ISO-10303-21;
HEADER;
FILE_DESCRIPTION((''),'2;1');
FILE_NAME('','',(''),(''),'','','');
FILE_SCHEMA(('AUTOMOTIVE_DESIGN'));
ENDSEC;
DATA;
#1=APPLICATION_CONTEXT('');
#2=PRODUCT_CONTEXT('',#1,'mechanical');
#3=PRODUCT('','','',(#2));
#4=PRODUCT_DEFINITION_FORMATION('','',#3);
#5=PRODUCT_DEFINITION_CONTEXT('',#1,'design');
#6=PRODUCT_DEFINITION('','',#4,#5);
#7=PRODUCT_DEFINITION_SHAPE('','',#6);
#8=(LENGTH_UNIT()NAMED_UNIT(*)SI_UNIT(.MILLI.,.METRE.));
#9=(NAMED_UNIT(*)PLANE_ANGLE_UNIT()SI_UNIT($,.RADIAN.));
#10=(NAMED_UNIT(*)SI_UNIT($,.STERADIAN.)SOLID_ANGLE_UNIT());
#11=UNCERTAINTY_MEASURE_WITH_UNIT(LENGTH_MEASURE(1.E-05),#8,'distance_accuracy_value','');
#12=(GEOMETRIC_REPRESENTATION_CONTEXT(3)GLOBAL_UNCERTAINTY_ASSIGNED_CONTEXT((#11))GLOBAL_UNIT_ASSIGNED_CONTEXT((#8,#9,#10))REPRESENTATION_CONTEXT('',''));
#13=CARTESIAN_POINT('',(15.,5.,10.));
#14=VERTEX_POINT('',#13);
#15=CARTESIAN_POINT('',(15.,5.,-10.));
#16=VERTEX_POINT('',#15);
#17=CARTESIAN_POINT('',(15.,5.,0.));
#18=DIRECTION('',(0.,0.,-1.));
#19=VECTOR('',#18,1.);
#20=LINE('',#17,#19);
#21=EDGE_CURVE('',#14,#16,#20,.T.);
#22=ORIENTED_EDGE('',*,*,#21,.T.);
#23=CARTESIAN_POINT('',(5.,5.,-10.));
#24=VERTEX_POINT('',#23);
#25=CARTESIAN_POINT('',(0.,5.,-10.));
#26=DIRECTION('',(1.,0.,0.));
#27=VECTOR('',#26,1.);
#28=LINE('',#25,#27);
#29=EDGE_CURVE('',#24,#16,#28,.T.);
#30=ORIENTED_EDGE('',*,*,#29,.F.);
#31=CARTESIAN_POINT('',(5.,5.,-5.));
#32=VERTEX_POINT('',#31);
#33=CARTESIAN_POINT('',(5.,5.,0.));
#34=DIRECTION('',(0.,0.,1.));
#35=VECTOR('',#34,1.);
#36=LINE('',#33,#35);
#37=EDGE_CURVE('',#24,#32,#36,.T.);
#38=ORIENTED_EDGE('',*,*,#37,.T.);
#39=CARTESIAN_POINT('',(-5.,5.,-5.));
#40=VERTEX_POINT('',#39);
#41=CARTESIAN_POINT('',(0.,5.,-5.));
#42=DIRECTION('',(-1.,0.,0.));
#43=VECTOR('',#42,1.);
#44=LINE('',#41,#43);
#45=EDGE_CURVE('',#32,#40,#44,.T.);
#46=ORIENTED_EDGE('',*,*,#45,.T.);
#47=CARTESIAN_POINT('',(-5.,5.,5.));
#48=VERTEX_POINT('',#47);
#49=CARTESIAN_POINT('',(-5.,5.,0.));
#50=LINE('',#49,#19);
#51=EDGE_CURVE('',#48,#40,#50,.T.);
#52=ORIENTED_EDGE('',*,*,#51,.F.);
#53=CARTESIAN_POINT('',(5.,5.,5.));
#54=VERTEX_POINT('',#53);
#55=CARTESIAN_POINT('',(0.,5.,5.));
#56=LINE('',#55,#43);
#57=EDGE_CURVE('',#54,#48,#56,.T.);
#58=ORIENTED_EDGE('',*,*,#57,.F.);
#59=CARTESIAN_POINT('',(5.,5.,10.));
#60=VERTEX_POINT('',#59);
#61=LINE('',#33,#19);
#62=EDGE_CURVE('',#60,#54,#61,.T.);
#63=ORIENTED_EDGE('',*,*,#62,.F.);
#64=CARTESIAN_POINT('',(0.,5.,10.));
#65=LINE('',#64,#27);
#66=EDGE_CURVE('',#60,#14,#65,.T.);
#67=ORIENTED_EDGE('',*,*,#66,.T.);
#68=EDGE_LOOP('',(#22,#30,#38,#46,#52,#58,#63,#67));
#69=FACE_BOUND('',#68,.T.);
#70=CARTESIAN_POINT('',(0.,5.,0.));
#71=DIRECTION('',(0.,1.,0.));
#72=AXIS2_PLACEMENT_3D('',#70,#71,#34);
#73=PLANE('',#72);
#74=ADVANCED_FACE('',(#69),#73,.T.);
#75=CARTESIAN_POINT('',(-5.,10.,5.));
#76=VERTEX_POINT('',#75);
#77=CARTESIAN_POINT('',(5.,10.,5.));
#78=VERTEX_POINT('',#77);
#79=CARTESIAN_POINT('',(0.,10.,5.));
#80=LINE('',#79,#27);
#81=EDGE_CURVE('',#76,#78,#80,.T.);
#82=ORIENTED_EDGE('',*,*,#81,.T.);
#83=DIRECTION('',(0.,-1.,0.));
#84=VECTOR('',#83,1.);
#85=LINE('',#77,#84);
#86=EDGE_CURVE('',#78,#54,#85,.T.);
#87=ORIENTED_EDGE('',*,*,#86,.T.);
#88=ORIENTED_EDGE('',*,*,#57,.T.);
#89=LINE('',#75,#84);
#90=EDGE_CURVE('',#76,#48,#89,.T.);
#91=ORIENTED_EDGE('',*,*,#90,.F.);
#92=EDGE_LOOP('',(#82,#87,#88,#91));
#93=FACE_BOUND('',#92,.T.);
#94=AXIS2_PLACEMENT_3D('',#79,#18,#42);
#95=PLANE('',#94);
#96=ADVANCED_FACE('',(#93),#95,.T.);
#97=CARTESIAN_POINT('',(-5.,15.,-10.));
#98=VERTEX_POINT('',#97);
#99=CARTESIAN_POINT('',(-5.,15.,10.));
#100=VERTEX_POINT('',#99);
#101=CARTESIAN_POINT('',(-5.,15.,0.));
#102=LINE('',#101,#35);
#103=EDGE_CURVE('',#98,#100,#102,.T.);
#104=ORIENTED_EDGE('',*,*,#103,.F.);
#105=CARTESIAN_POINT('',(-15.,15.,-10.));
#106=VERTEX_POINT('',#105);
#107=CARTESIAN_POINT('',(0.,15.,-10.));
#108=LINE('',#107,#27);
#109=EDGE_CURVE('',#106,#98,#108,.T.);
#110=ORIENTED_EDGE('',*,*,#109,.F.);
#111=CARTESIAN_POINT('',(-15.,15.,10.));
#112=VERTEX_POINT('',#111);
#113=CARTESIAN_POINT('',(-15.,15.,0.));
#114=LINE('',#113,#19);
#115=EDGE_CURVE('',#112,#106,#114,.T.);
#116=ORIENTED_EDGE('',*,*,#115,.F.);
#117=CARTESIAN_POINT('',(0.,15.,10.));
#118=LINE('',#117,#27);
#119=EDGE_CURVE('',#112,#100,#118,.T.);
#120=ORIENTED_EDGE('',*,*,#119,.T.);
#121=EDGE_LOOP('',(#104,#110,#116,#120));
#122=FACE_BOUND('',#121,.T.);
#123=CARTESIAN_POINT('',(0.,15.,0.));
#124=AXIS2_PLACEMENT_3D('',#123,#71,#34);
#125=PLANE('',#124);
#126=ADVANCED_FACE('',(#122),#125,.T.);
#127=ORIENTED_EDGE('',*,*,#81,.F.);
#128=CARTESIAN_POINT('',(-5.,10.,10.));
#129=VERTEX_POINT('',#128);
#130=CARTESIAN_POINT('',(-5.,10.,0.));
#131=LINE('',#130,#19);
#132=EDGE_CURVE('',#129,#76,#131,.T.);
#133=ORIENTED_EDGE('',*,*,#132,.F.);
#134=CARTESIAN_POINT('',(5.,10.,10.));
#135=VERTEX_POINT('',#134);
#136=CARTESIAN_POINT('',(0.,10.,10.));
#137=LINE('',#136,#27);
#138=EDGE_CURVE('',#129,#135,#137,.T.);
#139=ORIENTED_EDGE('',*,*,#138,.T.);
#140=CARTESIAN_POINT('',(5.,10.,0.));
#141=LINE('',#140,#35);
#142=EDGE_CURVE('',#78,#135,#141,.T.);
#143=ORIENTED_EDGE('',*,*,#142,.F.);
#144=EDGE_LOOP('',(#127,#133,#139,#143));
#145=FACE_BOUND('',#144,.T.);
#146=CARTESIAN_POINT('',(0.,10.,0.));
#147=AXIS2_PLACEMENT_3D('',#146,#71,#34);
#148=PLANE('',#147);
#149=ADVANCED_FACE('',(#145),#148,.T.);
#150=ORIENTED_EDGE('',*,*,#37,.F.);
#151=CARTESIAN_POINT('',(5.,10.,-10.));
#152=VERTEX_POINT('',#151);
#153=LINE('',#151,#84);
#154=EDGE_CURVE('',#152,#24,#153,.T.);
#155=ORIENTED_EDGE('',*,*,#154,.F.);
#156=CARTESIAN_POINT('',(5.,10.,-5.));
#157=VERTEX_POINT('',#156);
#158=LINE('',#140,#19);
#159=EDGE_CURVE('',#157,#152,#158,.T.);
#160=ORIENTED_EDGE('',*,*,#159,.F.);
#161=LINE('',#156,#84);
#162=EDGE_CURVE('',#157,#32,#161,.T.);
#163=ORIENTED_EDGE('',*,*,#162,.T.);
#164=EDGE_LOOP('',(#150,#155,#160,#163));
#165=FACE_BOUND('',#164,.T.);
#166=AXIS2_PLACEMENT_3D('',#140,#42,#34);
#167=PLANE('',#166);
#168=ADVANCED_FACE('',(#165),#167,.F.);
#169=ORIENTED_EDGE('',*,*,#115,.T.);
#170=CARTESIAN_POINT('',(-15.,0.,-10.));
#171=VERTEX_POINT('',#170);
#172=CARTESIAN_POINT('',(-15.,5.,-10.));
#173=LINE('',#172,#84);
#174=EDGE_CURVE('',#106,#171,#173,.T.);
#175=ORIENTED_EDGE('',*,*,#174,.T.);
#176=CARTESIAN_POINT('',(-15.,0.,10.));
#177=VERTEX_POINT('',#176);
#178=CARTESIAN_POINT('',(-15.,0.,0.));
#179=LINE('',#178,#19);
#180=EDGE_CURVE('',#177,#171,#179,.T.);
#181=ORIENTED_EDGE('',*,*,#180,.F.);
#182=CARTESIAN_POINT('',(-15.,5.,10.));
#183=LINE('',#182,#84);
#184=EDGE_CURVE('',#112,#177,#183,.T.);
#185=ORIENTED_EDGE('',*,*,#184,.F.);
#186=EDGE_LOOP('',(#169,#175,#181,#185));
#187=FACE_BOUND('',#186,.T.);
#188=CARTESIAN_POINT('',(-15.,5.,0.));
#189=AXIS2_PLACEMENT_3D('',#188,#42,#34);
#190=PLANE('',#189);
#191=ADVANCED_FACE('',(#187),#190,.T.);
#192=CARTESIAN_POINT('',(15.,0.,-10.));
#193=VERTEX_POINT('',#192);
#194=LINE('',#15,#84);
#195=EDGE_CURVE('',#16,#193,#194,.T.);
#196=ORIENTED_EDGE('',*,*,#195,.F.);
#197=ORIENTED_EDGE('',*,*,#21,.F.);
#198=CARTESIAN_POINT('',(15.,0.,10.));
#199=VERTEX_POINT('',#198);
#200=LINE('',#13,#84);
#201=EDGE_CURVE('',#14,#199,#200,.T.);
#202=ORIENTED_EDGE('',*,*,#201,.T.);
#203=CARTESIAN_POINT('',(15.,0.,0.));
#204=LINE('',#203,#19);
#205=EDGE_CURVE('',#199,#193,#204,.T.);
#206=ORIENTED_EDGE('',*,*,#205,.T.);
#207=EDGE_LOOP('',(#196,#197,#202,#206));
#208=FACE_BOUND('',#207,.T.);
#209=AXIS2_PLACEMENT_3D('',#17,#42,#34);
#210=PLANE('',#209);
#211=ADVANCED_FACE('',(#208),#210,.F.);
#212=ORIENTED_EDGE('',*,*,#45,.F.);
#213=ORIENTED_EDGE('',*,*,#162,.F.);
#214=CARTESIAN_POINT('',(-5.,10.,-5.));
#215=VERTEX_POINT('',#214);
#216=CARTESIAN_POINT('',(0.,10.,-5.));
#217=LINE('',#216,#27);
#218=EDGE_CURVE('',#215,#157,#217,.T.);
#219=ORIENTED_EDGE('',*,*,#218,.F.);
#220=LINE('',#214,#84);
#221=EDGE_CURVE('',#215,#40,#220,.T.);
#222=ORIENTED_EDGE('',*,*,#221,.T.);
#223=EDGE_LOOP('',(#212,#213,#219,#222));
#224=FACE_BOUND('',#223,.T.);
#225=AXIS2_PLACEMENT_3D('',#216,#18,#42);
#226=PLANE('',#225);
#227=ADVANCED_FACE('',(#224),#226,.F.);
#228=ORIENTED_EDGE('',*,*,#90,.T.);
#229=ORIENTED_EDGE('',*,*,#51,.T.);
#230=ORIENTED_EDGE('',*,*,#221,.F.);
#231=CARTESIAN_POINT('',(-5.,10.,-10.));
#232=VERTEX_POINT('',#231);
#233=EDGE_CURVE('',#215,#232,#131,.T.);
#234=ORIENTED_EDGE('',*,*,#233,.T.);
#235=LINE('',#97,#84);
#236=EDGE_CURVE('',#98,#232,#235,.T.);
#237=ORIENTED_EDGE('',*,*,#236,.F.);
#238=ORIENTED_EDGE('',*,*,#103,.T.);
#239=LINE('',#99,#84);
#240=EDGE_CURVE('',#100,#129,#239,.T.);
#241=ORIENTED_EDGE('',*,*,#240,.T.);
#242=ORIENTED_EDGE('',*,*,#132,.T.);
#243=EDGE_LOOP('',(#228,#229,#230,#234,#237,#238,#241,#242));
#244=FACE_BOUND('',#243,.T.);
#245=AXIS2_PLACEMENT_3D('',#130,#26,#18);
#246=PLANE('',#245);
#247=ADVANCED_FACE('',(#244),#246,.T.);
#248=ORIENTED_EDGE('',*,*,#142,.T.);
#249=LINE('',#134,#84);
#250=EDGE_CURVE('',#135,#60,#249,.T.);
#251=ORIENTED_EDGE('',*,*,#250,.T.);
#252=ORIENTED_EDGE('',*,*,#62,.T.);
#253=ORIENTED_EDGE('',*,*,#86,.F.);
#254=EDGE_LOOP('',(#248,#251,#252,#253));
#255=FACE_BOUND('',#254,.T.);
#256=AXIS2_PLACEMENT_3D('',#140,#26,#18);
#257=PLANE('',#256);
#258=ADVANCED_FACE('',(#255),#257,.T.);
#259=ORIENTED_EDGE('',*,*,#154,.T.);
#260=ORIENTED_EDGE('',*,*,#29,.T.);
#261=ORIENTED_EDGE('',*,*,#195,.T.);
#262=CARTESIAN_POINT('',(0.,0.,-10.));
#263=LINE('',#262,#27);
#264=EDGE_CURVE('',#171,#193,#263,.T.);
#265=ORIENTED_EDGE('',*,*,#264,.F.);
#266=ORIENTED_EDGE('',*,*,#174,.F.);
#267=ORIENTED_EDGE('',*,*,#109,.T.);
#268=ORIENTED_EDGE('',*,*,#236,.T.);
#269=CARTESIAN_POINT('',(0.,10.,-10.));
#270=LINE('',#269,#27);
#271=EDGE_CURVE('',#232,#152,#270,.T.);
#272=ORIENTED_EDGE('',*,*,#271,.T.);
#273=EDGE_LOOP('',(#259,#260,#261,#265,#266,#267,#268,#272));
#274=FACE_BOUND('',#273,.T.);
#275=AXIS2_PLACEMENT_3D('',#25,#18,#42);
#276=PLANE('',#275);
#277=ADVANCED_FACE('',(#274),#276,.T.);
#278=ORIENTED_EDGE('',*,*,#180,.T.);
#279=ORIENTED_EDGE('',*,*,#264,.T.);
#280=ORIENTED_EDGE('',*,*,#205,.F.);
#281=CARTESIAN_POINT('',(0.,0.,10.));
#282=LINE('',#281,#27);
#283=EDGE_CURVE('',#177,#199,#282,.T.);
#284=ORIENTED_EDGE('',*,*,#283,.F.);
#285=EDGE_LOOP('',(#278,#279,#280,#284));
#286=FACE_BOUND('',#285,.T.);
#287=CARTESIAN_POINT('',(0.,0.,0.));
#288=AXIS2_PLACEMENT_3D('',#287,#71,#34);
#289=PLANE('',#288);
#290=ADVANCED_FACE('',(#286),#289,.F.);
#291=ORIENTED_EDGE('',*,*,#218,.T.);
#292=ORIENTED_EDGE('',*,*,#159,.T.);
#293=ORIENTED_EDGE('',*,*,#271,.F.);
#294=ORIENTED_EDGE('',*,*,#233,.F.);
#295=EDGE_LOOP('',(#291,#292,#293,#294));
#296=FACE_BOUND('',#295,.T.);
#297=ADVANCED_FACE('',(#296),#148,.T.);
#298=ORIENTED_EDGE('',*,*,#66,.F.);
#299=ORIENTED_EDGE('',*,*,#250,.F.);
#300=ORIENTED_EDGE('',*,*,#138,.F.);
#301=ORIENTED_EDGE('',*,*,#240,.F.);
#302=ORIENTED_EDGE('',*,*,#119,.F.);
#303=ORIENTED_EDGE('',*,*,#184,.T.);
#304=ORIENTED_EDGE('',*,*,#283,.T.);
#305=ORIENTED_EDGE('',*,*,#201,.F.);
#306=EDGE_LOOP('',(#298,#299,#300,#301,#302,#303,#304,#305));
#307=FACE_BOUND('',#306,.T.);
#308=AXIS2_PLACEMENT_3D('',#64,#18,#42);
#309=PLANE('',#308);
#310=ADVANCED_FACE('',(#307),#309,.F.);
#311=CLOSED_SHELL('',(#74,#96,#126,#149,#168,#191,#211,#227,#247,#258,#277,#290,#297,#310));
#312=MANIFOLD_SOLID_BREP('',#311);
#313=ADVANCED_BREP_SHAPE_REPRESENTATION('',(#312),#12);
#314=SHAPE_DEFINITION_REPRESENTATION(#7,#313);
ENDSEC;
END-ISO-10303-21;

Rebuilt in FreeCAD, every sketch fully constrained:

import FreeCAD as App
import Part
import Sketcher

V = App.Vector
Q = App.Units.Quantity


def add_polygon(sketch, points):
    """Adds a closed chain of lines whose ends are joined by coincident constraints."""
    first, n = sketch.GeometryCount, len(points)
    for a, b in zip(points, points[1:] + points[:1]):
        sketch.addGeometry(Part.LineSegment(App.Vector(*a, 0), App.Vector(*b, 0)), False)
    for i in range(n):
        sketch.addConstraint(Sketcher.Constraint("Coincident", first + i, 2, first + (i + 1) % n, 1))

doc = App.newDocument("Part")
params = doc.addObject("Spreadsheet::Sheet", "Params")
for row, (alias, value) in enumerate([
    ("sketch1_width", "30 mm"),
    ("sketch1_height", "20 mm"),
    ("pad1_length", "5 mm"),
    ("sketch2_width", "10 mm"),
    ("sketch2_width2", "20 mm"),
    ("pad2_length", "10 mm"),
    ("sketch3_width", "10 mm"),
    ("sketch3_height", "20 mm"),
    ("pad3_length", "15 mm"),
], start=1):
    params.set(f"A{row}", alias)
    params.set(f"B{row}", "=" + value)
    params.setAlias(f"B{row}", alias)

body = doc.addObject("PartDesign::Body", "Body")

# Sketch on XZ plane
sketch1 = doc.addObject("Sketcher::SketchObject", "Sketch")
body.addObject(sketch1)
sketch1.AttachmentSupport = (doc.XZ_Plane, [""])
sketch1.MapMode = "FlatFace"
add_polygon(sketch1, [(-15, -10), (-15, 10), (15, 10), (15, -10)])  # lines 0-3
sketch1.addConstraint([
    Sketcher.Constraint("Vertical", 0),
    Sketcher.Constraint("Horizontal", 1),
    Sketcher.Constraint("Vertical", 2),
    Sketcher.Constraint("Horizontal", 3),
    Sketcher.Constraint("Symmetric", 0, 2, 2, 2, -1, 1),
    Sketcher.Constraint("DistanceX", 1, 1, 1, 2, Q("30 mm")),
    Sketcher.Constraint("DistanceY", 0, 1, 0, 2, Q("20 mm")),
])
sketch1.setExpression("Constraints[9]", "Params.sketch1_width")
sketch1.setExpression("Constraints[10]", "Params.sketch1_height")
pad1 = doc.addObject("PartDesign::Pad", "Pad")
body.addObject(pad1)
pad1.Profile = sketch1
pad1.setExpression("Length", "Params.pad1_length")
pad1.Reversed = True

# Sketch on XZ plane
sketch2 = doc.addObject("Sketcher::SketchObject", "Sketch001")
body.addObject(sketch2)
sketch2.AttachmentSupport = (doc.XZ_Plane, [""])
sketch2.MapMode = "FlatFace"
add_polygon(sketch2, [(-5, -5), (5, -5), (5, -10), (-15, -10), (-15, 10), (5, 10), (5, 5), (-5, 5)])  # lines 0-7
sketch2.addConstraint([
    Sketcher.Constraint("Horizontal", 0),
    Sketcher.Constraint("Vertical", 1),
    Sketcher.Constraint("Horizontal", 2),
    Sketcher.Constraint("Vertical", 3),
    Sketcher.Constraint("Horizontal", 4),
    Sketcher.Constraint("Vertical", 5),
    Sketcher.Constraint("Horizontal", 6),
    Sketcher.Constraint("Vertical", 7),
    Sketcher.Constraint("Symmetric", 0, 2, 6, 2, -1, 1),
    Sketcher.Constraint("Symmetric", 1, 2, 4, 2, -1),
    Sketcher.Constraint("Equal", 4, 3),
    Sketcher.Constraint("Equal", 6, 7),
    Sketcher.Constraint("DistanceX", 0, 1, 0, 2, Q("10 mm")),
    Sketcher.Constraint("DistanceX", 2, 2, 2, 1, Q("20 mm")),
])
sketch2.setExpression("Constraints[20]", "Params.sketch2_width")
sketch2.setExpression("Constraints[21]", "Params.sketch2_width2")
pad2 = doc.addObject("PartDesign::Pad", "Pad001")
body.addObject(pad2)
pad2.Profile = sketch2
pad2.setExpression("Length", "Params.pad2_length")
pad2.Reversed = True

# Sketch on XZ plane
sketch3 = doc.addObject("Sketcher::SketchObject", "Sketch002")
body.addObject(sketch3)
sketch3.AttachmentSupport = (doc.XZ_Plane, [""])
sketch3.MapMode = "FlatFace"
add_polygon(sketch3, [(-5, -10), (-15, -10), (-15, 10), (-5, 10)])  # lines 0-3
sketch3.addConstraint([
    Sketcher.Constraint("Horizontal", 0),
    Sketcher.Constraint("Vertical", 1),
    Sketcher.Constraint("Horizontal", 2),
    Sketcher.Constraint("Vertical", 3),
    Sketcher.Constraint("DistanceX", 0, 2, 0, 1, Q("10 mm")),
    Sketcher.Constraint("DistanceY", 1, 1, 1, 2, Q("20 mm")),
    Sketcher.Constraint("DistanceX", 0, 2, -1, 1, Q("15 mm")),
    Sketcher.Constraint("DistanceY", 0, 2, -1, 1, Q("10 mm")),
])
sketch3.setExpression("Constraints[8]", "Params.sketch3_width")
sketch3.setExpression("Constraints[9]", "Params.sketch3_height")
pad3 = doc.addObject("PartDesign::Pad", "Pad002")
body.addObject(pad3)
pad3.Profile = sketch3
pad3.setExpression("Length", "Params.pad3_length")
pad3.Reversed = True

doc.recompute()
